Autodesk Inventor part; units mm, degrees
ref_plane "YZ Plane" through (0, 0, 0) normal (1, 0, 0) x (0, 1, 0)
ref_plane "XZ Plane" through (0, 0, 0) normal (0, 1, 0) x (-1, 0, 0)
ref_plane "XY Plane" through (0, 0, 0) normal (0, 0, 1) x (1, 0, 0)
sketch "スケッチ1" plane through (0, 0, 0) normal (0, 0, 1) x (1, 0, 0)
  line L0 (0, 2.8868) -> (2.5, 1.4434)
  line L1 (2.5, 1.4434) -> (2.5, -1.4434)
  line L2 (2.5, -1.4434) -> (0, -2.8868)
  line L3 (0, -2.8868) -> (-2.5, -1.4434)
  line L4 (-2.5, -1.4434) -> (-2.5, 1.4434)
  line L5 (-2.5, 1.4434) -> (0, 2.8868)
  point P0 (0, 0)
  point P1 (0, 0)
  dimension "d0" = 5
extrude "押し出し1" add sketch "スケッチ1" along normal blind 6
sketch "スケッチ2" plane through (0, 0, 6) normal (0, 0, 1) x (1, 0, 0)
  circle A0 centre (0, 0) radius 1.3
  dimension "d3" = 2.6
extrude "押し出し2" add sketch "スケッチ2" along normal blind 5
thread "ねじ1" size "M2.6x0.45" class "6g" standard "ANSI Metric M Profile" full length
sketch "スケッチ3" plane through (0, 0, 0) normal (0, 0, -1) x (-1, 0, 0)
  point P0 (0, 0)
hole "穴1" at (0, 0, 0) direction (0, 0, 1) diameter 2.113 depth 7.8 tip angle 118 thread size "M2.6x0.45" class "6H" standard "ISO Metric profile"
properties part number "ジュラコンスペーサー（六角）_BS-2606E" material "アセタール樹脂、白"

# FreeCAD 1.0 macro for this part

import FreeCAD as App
import Part
import Sketcher
Q = App.Units.Quantity

doc = App.newDocument("Part")
body = doc.addObject("PartDesign::Body", "Body")

# Sketch on XY plane
sketch1 = body.newObject("Sketcher::SketchObject", "Sketch")
sketch1.AttachmentSupport = (doc.getObject("XY_Plane"), [""])
sketch1.MapMode = "FlatFace"
sketch1.addGeometry([
    Part.LineSegment(App.Vector(2.5, 1.4, 0), App.Vector(0, 2.9, 0)),  # 0
    Part.LineSegment(App.Vector(0, 2.9, 0), App.Vector(-2.5, 1.4, 0)),  # 1
    Part.LineSegment(App.Vector(-2.5, 1.4, 0), App.Vector(-2.5, -1.4, 0)),  # 2
    Part.LineSegment(App.Vector(-2.5, -1.4, 0), App.Vector(0, -2.9, 0)),  # 3
    Part.LineSegment(App.Vector(0, -2.9, 0), App.Vector(2.5, -1.4, 0)),  # 4
    Part.LineSegment(App.Vector(2.5, -1.4, 0), App.Vector(2.5, 1.4, 0)),  # 5
], False)
sketch1.addConstraint([
    Sketcher.Constraint("Coincident", 0, 2, 1, 1),
    Sketcher.Constraint("Coincident", 1, 2, 2, 1),
    Sketcher.Constraint("Coincident", 2, 2, 3, 1),
    Sketcher.Constraint("Coincident", 3, 2, 4, 1),
    Sketcher.Constraint("Coincident", 4, 2, 5, 1),
    Sketcher.Constraint("Coincident", 5, 2, 0, 1),
    Sketcher.Constraint("Vertical", 2),
    Sketcher.Constraint("Vertical", 5),
    Sketcher.Constraint("Symmetric", 0, 2, 3, 2, -1, 1),
    Sketcher.Constraint("Symmetric", 1, 2, 4, 2, -1, 1),
    Sketcher.Constraint("PointOnObject", 0, 2, -2),
    Sketcher.Constraint("Parallel", 0, 3),
    Sketcher.Constraint("Horizontal", 2, 2, 4, 2),
    Sketcher.Constraint("DistanceX", 2, 2, 4, 2, 5.0),
    Sketcher.Constraint("Angle", 0, Q("149.9996 deg")),
    Sketcher.Constraint("DistanceY", 2, 2, 2, 1, 2.8868),
])
pad1 = body.newObject("PartDesign::Pad", "Pad")
pad1.Profile = sketch1
pad1.Length = 6

# Sketch on XY plane
sketch2 = body.newObject("Sketcher::SketchObject", "Sketch001")
sketch2.AttachmentSupport = (doc.getObject("XY_Plane"), [""])
sketch2.MapMode = "FlatFace"
sketch2.AttachmentOffset = App.Placement(App.Vector(0, 0, 6), App.Rotation())
sketch2.addGeometry(Part.Circle(App.Vector(0, 0, 0), App.Vector(0, 0, 1), 1.3), False)
sketch2.addConstraint([
    Sketcher.Constraint("Coincident", 0, 3, -1, 1),
    Sketcher.Constraint("Diameter", 0, 2.6),
])
pad2 = body.newObject("PartDesign::Pad", "Pad001")
pad2.Profile = sketch2
pad2.Length = 5

# Sketch on XY plane
sketch3 = body.newObject("Sketcher::SketchObject", "Sketch002")
sketch3.AttachmentSupport = (doc.getObject("XY_Plane"), [""])
sketch3.MapMode = "FlatFace"
sketch3.addGeometry(Part.Circle(App.Vector(0, 0, 0), App.Vector(0, 0, 1), 1.1), False)
sketch3.addConstraint([
    Sketcher.Constraint("Coincident", 0, 3, -1, 1),
    Sketcher.Constraint("Diameter", 0, 2.113),
])
doc.recompute()
hole = body.newObject("PartDesign::Hole", "Hole")
hole.Profile = sketch3
hole.ThreadType = "None"
hole.Diameter = 2.113
hole.DepthType = "Dimension"
hole.Depth = 7.8
hole.DrillPoint = "Angled"
hole.DrillPointAngle = 118
hole.Reversed = True

doc.recompute()
